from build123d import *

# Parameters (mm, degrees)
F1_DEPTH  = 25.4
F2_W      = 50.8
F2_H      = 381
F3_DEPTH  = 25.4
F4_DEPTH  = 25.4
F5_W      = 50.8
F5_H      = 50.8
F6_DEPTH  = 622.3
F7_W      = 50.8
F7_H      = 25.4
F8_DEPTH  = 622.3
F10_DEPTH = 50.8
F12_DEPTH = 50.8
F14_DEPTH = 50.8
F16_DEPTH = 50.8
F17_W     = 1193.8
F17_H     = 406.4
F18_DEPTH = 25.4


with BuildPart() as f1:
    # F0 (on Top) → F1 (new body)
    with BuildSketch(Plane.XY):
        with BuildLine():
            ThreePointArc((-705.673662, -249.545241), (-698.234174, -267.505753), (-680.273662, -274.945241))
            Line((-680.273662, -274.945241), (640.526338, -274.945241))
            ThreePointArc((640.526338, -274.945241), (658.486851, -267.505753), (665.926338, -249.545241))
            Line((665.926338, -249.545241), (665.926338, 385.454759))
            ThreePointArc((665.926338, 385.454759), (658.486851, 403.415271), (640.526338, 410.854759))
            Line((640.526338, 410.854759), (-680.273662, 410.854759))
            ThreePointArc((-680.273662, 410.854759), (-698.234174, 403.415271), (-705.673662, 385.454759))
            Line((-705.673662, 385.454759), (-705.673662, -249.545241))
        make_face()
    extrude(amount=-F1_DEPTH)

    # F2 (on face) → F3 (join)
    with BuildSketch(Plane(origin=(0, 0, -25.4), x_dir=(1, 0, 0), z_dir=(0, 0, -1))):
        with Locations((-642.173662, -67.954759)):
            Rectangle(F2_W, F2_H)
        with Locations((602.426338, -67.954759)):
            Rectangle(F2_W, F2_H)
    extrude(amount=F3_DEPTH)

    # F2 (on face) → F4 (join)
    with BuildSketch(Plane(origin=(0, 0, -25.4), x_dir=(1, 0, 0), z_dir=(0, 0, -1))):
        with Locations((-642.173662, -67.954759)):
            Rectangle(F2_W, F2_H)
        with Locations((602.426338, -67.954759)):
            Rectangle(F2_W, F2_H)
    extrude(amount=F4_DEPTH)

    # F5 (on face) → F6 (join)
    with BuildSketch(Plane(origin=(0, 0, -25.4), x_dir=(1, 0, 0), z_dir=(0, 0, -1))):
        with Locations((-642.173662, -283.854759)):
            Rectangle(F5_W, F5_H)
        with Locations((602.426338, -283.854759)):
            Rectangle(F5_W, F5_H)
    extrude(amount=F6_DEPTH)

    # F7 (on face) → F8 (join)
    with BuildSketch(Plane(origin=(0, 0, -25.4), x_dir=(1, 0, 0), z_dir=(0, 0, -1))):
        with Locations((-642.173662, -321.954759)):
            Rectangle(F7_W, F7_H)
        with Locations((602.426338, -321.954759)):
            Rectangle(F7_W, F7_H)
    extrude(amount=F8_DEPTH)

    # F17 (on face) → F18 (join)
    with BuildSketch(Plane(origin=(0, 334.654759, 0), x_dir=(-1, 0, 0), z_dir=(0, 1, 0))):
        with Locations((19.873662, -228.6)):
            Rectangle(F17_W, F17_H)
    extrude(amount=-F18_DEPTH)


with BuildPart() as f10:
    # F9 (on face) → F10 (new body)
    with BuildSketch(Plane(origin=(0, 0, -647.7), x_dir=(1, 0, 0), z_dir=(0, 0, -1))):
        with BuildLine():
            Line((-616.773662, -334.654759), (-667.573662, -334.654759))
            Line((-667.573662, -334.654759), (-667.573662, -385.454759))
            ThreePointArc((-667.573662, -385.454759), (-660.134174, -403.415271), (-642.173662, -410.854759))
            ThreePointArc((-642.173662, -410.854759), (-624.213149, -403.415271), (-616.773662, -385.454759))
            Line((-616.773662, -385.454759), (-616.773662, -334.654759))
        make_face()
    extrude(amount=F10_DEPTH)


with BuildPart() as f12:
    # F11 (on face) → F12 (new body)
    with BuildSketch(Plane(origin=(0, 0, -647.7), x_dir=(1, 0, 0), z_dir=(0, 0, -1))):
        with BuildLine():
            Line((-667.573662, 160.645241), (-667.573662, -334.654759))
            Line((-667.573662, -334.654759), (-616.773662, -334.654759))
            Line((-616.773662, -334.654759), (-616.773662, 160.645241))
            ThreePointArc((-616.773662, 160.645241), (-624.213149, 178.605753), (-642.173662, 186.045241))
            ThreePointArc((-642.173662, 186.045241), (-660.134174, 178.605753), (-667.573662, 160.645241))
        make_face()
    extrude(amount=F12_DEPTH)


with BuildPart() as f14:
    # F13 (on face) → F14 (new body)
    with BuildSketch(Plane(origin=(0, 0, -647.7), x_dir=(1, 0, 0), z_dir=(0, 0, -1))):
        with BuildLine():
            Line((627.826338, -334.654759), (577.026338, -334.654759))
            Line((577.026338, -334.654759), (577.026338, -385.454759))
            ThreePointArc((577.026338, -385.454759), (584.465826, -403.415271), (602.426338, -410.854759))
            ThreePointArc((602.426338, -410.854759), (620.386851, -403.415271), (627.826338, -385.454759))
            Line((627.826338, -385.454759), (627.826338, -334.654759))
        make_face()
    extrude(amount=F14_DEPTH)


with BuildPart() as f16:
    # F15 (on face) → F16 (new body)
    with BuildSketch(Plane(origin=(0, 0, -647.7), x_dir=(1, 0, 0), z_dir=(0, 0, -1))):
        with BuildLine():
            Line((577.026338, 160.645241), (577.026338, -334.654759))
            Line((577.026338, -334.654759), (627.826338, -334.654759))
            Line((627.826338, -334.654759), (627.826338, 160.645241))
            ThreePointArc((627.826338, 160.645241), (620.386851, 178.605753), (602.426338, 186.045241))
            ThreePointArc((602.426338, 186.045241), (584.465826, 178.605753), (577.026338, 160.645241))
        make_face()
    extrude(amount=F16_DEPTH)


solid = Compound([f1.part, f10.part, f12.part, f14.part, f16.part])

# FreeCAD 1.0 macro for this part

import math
import FreeCAD as App
import Part
import Sketcher

V = App.Vector
Q = App.Units.Quantity

doc = App.newDocument("Part")
body = doc.addObject("PartDesign::Body", "Body")

# Sketch on XY plane
sketch1 = doc.addObject("Sketcher::SketchObject", "Sketch")
body.addObject(sketch1)
sketch1.AttachmentSupport = (doc.XY_Plane, [""])
sketch1.MapMode = "FlatFace"
sketch1.addGeometry([
    Part.ArcOfCircle(Part.Circle(V(-680, -250, 0), V(0, 0, 1), 25), math.radians(-180), math.radians(-90)),  # 0
    Part.LineSegment(V(-680, -275, 0), V(641, -275, 0)),  # 1
    Part.ArcOfCircle(Part.Circle(V(641, -250, 0), V(0, 0, 1), 25), math.radians(-90), math.radians(0)),  # 2
    Part.LineSegment(V(666, -250, 0), V(666, 385, 0)),  # 3
    Part.ArcOfCircle(Part.Circle(V(641, 385, 0), V(0, 0, 1), 25), math.radians(0), math.radians(90)),  # 4
    Part.LineSegment(V(641, 411, 0), V(-680, 411, 0)),  # 5
    Part.ArcOfCircle(Part.Circle(V(-680, 385, 0), V(0, 0, 1), 25), math.radians(90), math.radians(180)),  # 6
    Part.LineSegment(V(-706, 385, 0), V(-706, -250, 0)),  # 7
], False)
sketch1.addConstraint([
    Sketcher.Constraint("Tangent", 0, 2, 1, 1),
    Sketcher.Constraint("Tangent", 1, 2, 2, 1),
    Sketcher.Constraint("Tangent", 2, 2, 3, 1),
    Sketcher.Constraint("Tangent", 3, 2, 4, 1),
    Sketcher.Constraint("Tangent", 4, 2, 5, 1),
    Sketcher.Constraint("Tangent", 5, 2, 6, 1),
    Sketcher.Constraint("Tangent", 6, 2, 7, 1),
    Sketcher.Constraint("Tangent", 7, 2, 0, 1),
    Sketcher.Constraint("Horizontal", 1),
    Sketcher.Constraint("Vertical", 3),
    Sketcher.Constraint("Horizontal", 5),
    Sketcher.Constraint("Vertical", 7),
    Sketcher.Constraint("Equal", 0, 2),
    Sketcher.Constraint("Equal", 2, 4),
    Sketcher.Constraint("Equal", 4, 6),
    Sketcher.Constraint("Radius", 0, Q("1 in")),
    Sketcher.Constraint("DistanceX", 1, 1, 1, 2, Q("52 in")),
    Sketcher.Constraint("DistanceY", 3, 1, 3, 2, Q("25 in")),
    Sketcher.Constraint("DistanceX", 0, 3, -1, 1, 680.273661),
    Sketcher.Constraint("DistanceY", 0, 3, -1, 1, 249.54524),
])
pad1 = doc.addObject("PartDesign::Pad", "Pad")
body.addObject(pad1)
pad1.Profile = sketch1
pad1.Length = Q("1 in")
pad1.Reversed = True

# Sketch on XY plane
sketch2 = doc.addObject("Sketcher::SketchObject", "Sketch001")
body.addObject(sketch2)
sketch2.AttachmentSupport = (doc.XY_Plane, [""])
sketch2.MapMode = "FlatFace"
sketch2.AttachmentOffset = App.Placement(V(0, 0, -1 * 25.4), App.Rotation())
sketch2.addGeometry([
    Part.LineSegment(V(-668, -123, 0), V(-668, 258, 0)),  # 0
    Part.LineSegment(V(-668, 258, 0), V(-617, 258, 0)),  # 1
    Part.LineSegment(V(-617, 258, 0), V(-617, -123, 0)),  # 2
    Part.LineSegment(V(-617, -123, 0), V(-668, -123, 0)),  # 3
    Part.LineSegment(V(577, -123, 0), V(577, 258, 0)),  # 4
    Part.LineSegment(V(577, 258, 0), V(628, 258, 0)),  # 5
    Part.LineSegment(V(628, 258, 0), V(628, -123, 0)),  # 6
    Part.LineSegment(V(628, -123, 0), V(577, -123, 0)),  # 7
], False)
sketch2.addConstraint([
    Sketcher.Constraint("Coincident", 0, 2, 1, 1),
    Sketcher.Constraint("Coincident", 1, 2, 2, 1),
    Sketcher.Constraint("Coincident", 2, 2, 3, 1),
    Sketcher.Constraint("Coincident", 3, 2, 0, 1),
    Sketcher.Constraint("Coincident", 4, 2, 5, 1),
    Sketcher.Constraint("Coincident", 5, 2, 6, 1),
    Sketcher.Constraint("Coincident", 6, 2, 7, 1),
    Sketcher.Constraint("Coincident", 7, 2, 4, 1),
    Sketcher.Constraint("Vertical", 0),
    Sketcher.Constraint("Horizontal", 1),
    Sketcher.Constraint("Vertical", 2),
    Sketcher.Constraint("Horizontal", 3),
    Sketcher.Constraint("Vertical", 4),
    Sketcher.Constraint("Horizontal", 5),
    Sketcher.Constraint("Vertical", 6),
    Sketcher.Constraint("Horizontal", 7),
    Sketcher.Constraint("Horizontal", 1, 2, 4, 2),
    Sketcher.Constraint("Horizontal", 3, 2, 6, 2),
    Sketcher.Constraint("Equal", 3, 5),
    Sketcher.Constraint("DistanceX", 1, 1, 1, 2, Q("2 in")),
    Sketcher.Constraint("DistanceY", 0, 1, 0, 2, Q("15 in")),
    Sketcher.Constraint("DistanceX", 1, 2, 4, 2, Q("47 in")),
    Sketcher.Constraint("DistanceX", 0, 2, -1, 1, 667.573662),
    Sketcher.Constraint("DistanceY", -1, 1, 0, 2, 258.454759),
])
pad2 = doc.addObject("PartDesign::Pad", "Pad001")
body.addObject(pad2)
pad2.Profile = sketch2
pad2.Length = Q("1 in")
pad2.Reversed = True

# Sketch on XY plane
sketch3 = doc.addObject("Sketcher::SketchObject", "Sketch002")
body.addObject(sketch3)
sketch3.AttachmentSupport = (doc.XY_Plane, [""])
sketch3.MapMode = "FlatFace"
sketch3.AttachmentOffset = App.Placement(V(0, 0, -1 * 25.4), App.Rotation())
sketch3.addGeometry([
    Part.LineSegment(V(-668, -123, 0), V(-668, 258, 0)),  # 0
    Part.LineSegment(V(-668, 258, 0), V(-617, 258, 0)),  # 1
    Part.LineSegment(V(-617, 258, 0), V(-617, -123, 0)),  # 2
    Part.LineSegment(V(-617, -123, 0), V(-668, -123, 0)),  # 3
    Part.LineSegment(V(577, -123, 0), V(577, 258, 0)),  # 4
    Part.LineSegment(V(577, 258, 0), V(628, 258, 0)),  # 5
    Part.LineSegment(V(628, 258, 0), V(628, -123, 0)),  # 6
    Part.LineSegment(V(628, -123, 0), V(577, -123, 0)),  # 7
], False)
sketch3.addConstraint([
    Sketcher.Constraint("Coincident", 0, 2, 1, 1),
    Sketcher.Constraint("Coincident", 1, 2, 2, 1),
    Sketcher.Constraint("Coincident", 2, 2, 3, 1),
    Sketcher.Constraint("Coincident", 3, 2, 0, 1),
    Sketcher.Constraint("Coincident", 4, 2, 5, 1),
    Sketcher.Constraint("Coincident", 5, 2, 6, 1),
    Sketcher.Constraint("Coincident", 6, 2, 7, 1),
    Sketcher.Constraint("Coincident", 7, 2, 4, 1),
    Sketcher.Constraint("Vertical", 0),
    Sketcher.Constraint("Horizontal", 1),
    Sketcher.Constraint("Vertical", 2),
    Sketcher.Constraint("Horizontal", 3),
    Sketcher.Constraint("Vertical", 4),
    Sketcher.Constraint("Horizontal", 5),
    Sketcher.Constraint("Vertical", 6),
    Sketcher.Constraint("Horizontal", 7),
    Sketcher.Constraint("Horizontal", 1, 2, 4, 2),
    Sketcher.Constraint("Horizontal", 3, 2, 6, 2),
    Sketcher.Constraint("Equal", 3, 5),
    Sketcher.Constraint("DistanceX", 1, 1, 1, 2, Q("2 in")),
    Sketcher.Constraint("DistanceY", 0, 1, 0, 2, Q("15 in")),
    Sketcher.Constraint("DistanceX", 1, 2, 4, 2, Q("47 in")),
    Sketcher.Constraint("DistanceX", 0, 2, -1, 1, 667.573662),
    Sketcher.Constraint("DistanceY", -1, 1, 0, 2, 258.454759),
])
pad3 = doc.addObject("PartDesign::Pad", "Pad002")
body.addObject(pad3)
pad3.Profile = sketch3
pad3.Length = Q("1 in")
pad3.Reversed = True

# Sketch on XY plane
sketch4 = doc.addObject("Sketcher::SketchObject", "Sketch003")
body.addObject(sketch4)
sketch4.AttachmentSupport = (doc.XY_Plane, [""])
sketch4.MapMode = "FlatFace"
sketch4.AttachmentOffset = App.Placement(V(0, 0, -1 * 25.4), App.Rotation())
sketch4.addGeometry([
    Part.LineSegment(V(-668, 258, 0), V(-668, 309, 0)),  # 0
    Part.LineSegment(V(-668, 309, 0), V(-617, 309, 0)),  # 1
    Part.LineSegment(V(-617, 309, 0), V(-617, 258, 0)),  # 2
    Part.LineSegment(V(-617, 258, 0), V(-668, 258, 0)),  # 3
    Part.LineSegment(V(577, 258, 0), V(577, 309, 0)),  # 4
    Part.LineSegment(V(577, 309, 0), V(628, 309, 0)),  # 5
    Part.LineSegment(V(628, 309, 0), V(628, 258, 0)),  # 6
    Part.LineSegment(V(628, 258, 0), V(577, 258, 0)),  # 7
], False)
sketch4.addConstraint([
    Sketcher.Constraint("Coincident", 0, 2, 1, 1),
    Sketcher.Constraint("Coincident", 1, 2, 2, 1),
    Sketcher.Constraint("Coincident", 2, 2, 3, 1),
    Sketcher.Constraint("Coincident", 3, 2, 0, 1),
    Sketcher.Constraint("Coincident", 4, 2, 5, 1),
    Sketcher.Constraint("Coincident", 5, 2, 6, 1),
    Sketcher.Constraint("Coincident", 6, 2, 7, 1),
    Sketcher.Constraint("Coincident", 7, 2, 4, 1),
    Sketcher.Constraint("Vertical", 0),
    Sketcher.Constraint("Horizontal", 1),
    Sketcher.Constraint("Vertical", 2),
    Sketcher.Constraint("Horizontal", 3),
    Sketcher.Constraint("Vertical", 4),
    Sketcher.Constraint("Horizontal", 5),
    Sketcher.Constraint("Vertical", 6),
    Sketcher.Constraint("Horizontal", 7),
    Sketcher.Constraint("Horizontal", 1, 2, 4, 2),
    Sketcher.Constraint("Horizontal", 3, 2, 6, 2),
    Sketcher.Constraint("Equal", 3, 5),
    Sketcher.Constraint("Equal", 7, 0),
    Sketcher.Constraint("DistanceX", 1, 1, 1, 2, Q("2 in")),
    Sketcher.Constraint("DistanceX", 1, 2, 4, 2, Q("47 in")),
    Sketcher.Constraint("DistanceX", 0, 2, -1, 1, 667.573662),
    Sketcher.Constraint("DistanceY", -1, 1, 0, 2, 309.254759),
])
pad4 = doc.addObject("PartDesign::Pad", "Pad003")
body.addObject(pad4)
pad4.Profile = sketch4
pad4.Length = Q("24.5 in")
pad4.Reversed = True

# Sketch on XY plane
sketch5 = doc.addObject("Sketcher::SketchObject", "Sketch004")
body.addObject(sketch5)
sketch5.AttachmentSupport = (doc.XY_Plane, [""])
sketch5.MapMode = "FlatFace"
sketch5.AttachmentOffset = App.Placement(V(0, 0, -1 * 25.4), App.Rotation())
sketch5.addGeometry([
    Part.LineSegment(V(-668, 309, 0), V(-668, 335, 0)),  # 0
    Part.LineSegment(V(-668, 335, 0), V(-617, 335, 0)),  # 1
    Part.LineSegment(V(-617, 335, 0), V(-617, 309, 0)),  # 2
    Part.LineSegment(V(-617, 309, 0), V(-668, 309, 0)),  # 3
    Part.LineSegment(V(577, 309, 0), V(577, 335, 0)),  # 4
    Part.LineSegment(V(577, 335, 0), V(628, 335, 0)),  # 5
    Part.LineSegment(V(628, 335, 0), V(628, 309, 0)),  # 6
    Part.LineSegment(V(628, 309, 0), V(577, 309, 0)),  # 7
], False)
sketch5.addConstraint([
    Sketcher.Constraint("Coincident", 0, 2, 1, 1),
    Sketcher.Constraint("Coincident", 1, 2, 2, 1),
    Sketcher.Constraint("Coincident", 2, 2, 3, 1),
    Sketcher.Constraint("Coincident", 3, 2, 0, 1),
    Sketcher.Constraint("Coincident", 4, 2, 5, 1),
    Sketcher.Constraint("Coincident", 5, 2, 6, 1),
    Sketcher.Constraint("Coincident", 6, 2, 7, 1),
    Sketcher.Constraint("Coincident", 7, 2, 4, 1),
    Sketcher.Constraint("Vertical", 0),
    Sketcher.Constraint("Horizontal", 1),
    Sketcher.Constraint("Vertical", 2),
    Sketcher.Constraint("Horizontal", 3),
    Sketcher.Constraint("Vertical", 4),
    Sketcher.Constraint("Horizontal", 5),
    Sketcher.Constraint("Vertical", 6),
    Sketcher.Constraint("Horizontal", 7),
    Sketcher.Constraint("Horizontal", 1, 2, 4, 2),
    Sketcher.Constraint("Horizontal", 3, 2, 6, 2),
    Sketcher.Constraint("Equal", 3, 5),
    Sketcher.Constraint("DistanceX", 1, 1, 1, 2, Q("2 in")),
    Sketcher.Constraint("DistanceY", 0, 1, 0, 2, Q("1 in")),
    Sketcher.Constraint("DistanceX", 1, 2, 4, 2, Q("47 in")),
    Sketcher.Constraint("DistanceX", 0, 2, -1, 1, 667.573662),
    Sketcher.Constraint("DistanceY", -1, 1, 0, 2, 334.654759),
])
pad5 = doc.addObject("PartDesign::Pad", "Pad004")
body.addObject(pad5)
pad5.Profile = sketch5
pad5.Length = Q("24.5 in")
pad5.Reversed = True

# Sketch on XZ plane
sketch6 = doc.addObject("Sketcher::SketchObject", "Sketch005")
body.addObject(sketch6)
sketch6.AttachmentSupport = (doc.XZ_Plane, [""])
sketch6.MapMode = "FlatFace"
sketch6.AttachmentOffset = App.Placement(V(0, 0, -334.654759), App.Rotation())
sketch6.addGeometry([
    Part.LineSegment(V(577, -25, 0), V(577, -432, 0)),
    Part.LineSegment(V(577, -432, 0), V(-617, -432, 0)),
    Part.LineSegment(V(-617, -432, 0), V(-617, -25, 0)),
    Part.LineSegment(V(-617, -25, 0), V(577, -25, 0)),
], False)
sketch6.addConstraint([
    Sketcher.Constraint("Coincident", 0, 2, 1, 1),
    Sketcher.Constraint("Coincident", 1, 2, 2, 1),
    Sketcher.Constraint("Coincident", 2, 2, 3, 1),
    Sketcher.Constraint("Coincident", 3, 2, 0, 1),
    Sketcher.Constraint("Vertical", 0),
    Sketcher.Constraint("Horizontal", 1),
    Sketcher.Constraint("Vertical", 2),
    Sketcher.Constraint("Horizontal", 3),
    Sketcher.Constraint("DistanceX", 1, 2, 1, 1, Q("47 in")),
    Sketcher.Constraint("DistanceY", 0, 2, 0, 1, Q("16 in")),
    Sketcher.Constraint("DistanceY", 0, 2, -1, 1, Q("17 in")),
    Sketcher.Constraint("DistanceX", -1, 1, 0, 2, 577.026338),
])
pad6 = doc.addObject("PartDesign::Pad", "Pad005")
body.addObject(pad6)
pad6.Profile = sketch6
pad6.Length = Q("1 in")
body2 = doc.addObject("PartDesign::Body", "Body001")

# Sketch on XY plane
sketch7 = doc.addObject("Sketcher::SketchObject", "Sketch006")
body2.addObject(sketch7)
sketch7.AttachmentSupport = (doc.getObject("XY_Plane001"), [""])
sketch7.MapMode = "FlatFace"
sketch7.AttachmentOffset = App.Placement(V(0, 0, -25.5 * 25.4), App.Rotation())
sketch7.addGeometry([
    Part.LineSegment(V(-617, 335, 0), V(-668, 335, 0)),  # 0
    Part.LineSegment(V(-668, 335, 0), V(-668, 385, 0)),  # 1
    Part.ArcOfCircle(Part.Circle(V(-642, 385, 0), V(0, 0, 1), 25), math.radians(90), math.radians(180)),  # 2
    Part.ArcOfCircle(Part.Circle(V(-642, 385, 0), V(0, 0, 1), 25), math.radians(0), math.radians(90)),  # 3
    Part.LineSegment(V(-617, 385, 0), V(-617, 335, 0)),  # 4
], False)
sketch7.addConstraint([
    Sketcher.Constraint("Coincident", 0, 2, 1, 1),
    Sketcher.Constraint("Tangent", 1, 2, 2, 2),
    Sketcher.Constraint("Tangent", 2, 1, 3, 2),
    Sketcher.Constraint("Tangent", 3, 1, 4, 1),
    Sketcher.Constraint("Coincident", 4, 2, 0, 1),
    Sketcher.Constraint("Horizontal", 0),
    Sketcher.Constraint("Vertical", 1),
    Sketcher.Constraint("Vertical", 4),
    Sketcher.Constraint("Equal", 2, 3),
    Sketcher.Constraint("Vertical", 3, 3, 2, 1),
    Sketcher.Constraint("Equal", 0, 1),
    Sketcher.Constraint("Radius", 2, Q("1 in")),
    Sketcher.Constraint("DistanceX", 2, 3, -1, 1, 642.173661),
    Sketcher.Constraint("DistanceY", -1, 1, 2, 3, 385.454758),
])
pad7 = doc.addObject("PartDesign::Pad", "Pad006")
body2.addObject(pad7)
pad7.Profile = sketch7
pad7.Length = Q("2 in")
pad7.Reversed = True
body3 = doc.addObject("PartDesign::Body", "Body002")

# Sketch on XY plane
sketch8 = doc.addObject("Sketcher::SketchObject", "Sketch007")
body3.addObject(sketch8)
sketch8.AttachmentSupport = (doc.getObject("XY_Plane002"), [""])
sketch8.MapMode = "FlatFace"
sketch8.AttachmentOffset = App.Placement(V(0, 0, -25.5 * 25.4), App.Rotation())
sketch8.addGeometry([
    Part.LineSegment(V(-668, -161, 0), V(-668, 335, 0)),  # 0
    Part.LineSegment(V(-668, 335, 0), V(-617, 335, 0)),  # 1
    Part.LineSegment(V(-617, 335, 0), V(-617, -161, 0)),  # 2
    Part.ArcOfCircle(Part.Circle(V(-642, -161, 0), V(0, 0, 1), 25), math.radians(-90), math.radians(0)),  # 3
    Part.ArcOfCircle(Part.Circle(V(-642, -161, 0), V(0, 0, 1), 25), math.radians(-180), math.radians(-90)),  # 4
], False)
sketch8.addConstraint([
    Sketcher.Constraint("Coincident", 0, 2, 1, 1),
    Sketcher.Constraint("Coincident", 1, 2, 2, 1),
    Sketcher.Constraint("Tangent", 2, 2, 3, 2),
    Sketcher.Constraint("Tangent", 3, 1, 4, 2),
    Sketcher.Constraint("Tangent", 4, 1, 0, 1),
    Sketcher.Constraint("Vertical", 0),
    Sketcher.Constraint("Horizontal", 1),
    Sketcher.Constraint("Vertical", 2),
    Sketcher.Constraint("Equal", 3, 4),
    Sketcher.Constraint("Vertical", 4, 3, 3, 1),
    Sketcher.Constraint("Radius", 3, Q("1 in")),
    Sketcher.Constraint("DistanceY", 0, 1, 0, 2, Q("19.5 in")),
    Sketcher.Constraint("DistanceX", 3, 3, -1, 1, 642.173661),
    Sketcher.Constraint("DistanceY", 3, 3, -1, 1, 160.645242),
])
pad8 = doc.addObject("PartDesign::Pad", "Pad007")
body3.addObject(pad8)
pad8.Profile = sketch8
pad8.Length = Q("2 in")
pad8.Reversed = True
body4 = doc.addObject("PartDesign::Body", "Body003")

# Sketch on XY plane
sketch9 = doc.addObject("Sketcher::SketchObject", "Sketch008")
body4.addObject(sketch9)
sketch9.AttachmentSupport = (doc.getObject("XY_Plane003"), [""])
sketch9.MapMode = "FlatFace"
sketch9.AttachmentOffset = App.Placement(V(0, 0, -25.5 * 25.4), App.Rotation())
sketch9.addGeometry([
    Part.LineSegment(V(628, 335, 0), V(577, 335, 0)),  # 0
    Part.LineSegment(V(577, 335, 0), V(577, 385, 0)),  # 1
    Part.ArcOfCircle(Part.Circle(V(602, 385, 0), V(0, 0, 1), 25), math.radians(90), math.radians(180)),  # 2
    Part.ArcOfCircle(Part.Circle(V(602, 385, 0), V(0, 0, 1), 25), math.radians(0), math.radians(90)),  # 3
    Part.LineSegment(V(628, 385, 0), V(628, 335, 0)),  # 4
], False)
sketch9.addConstraint([
    Sketcher.Constraint("Coincident", 0, 2, 1, 1),
    Sketcher.Constraint("Tangent", 1, 2, 2, 2),
    Sketcher.Constraint("Tangent", 2, 1, 3, 2),
    Sketcher.Constraint("Tangent", 3, 1, 4, 1),
    Sketcher.Constraint("Coincident", 4, 2, 0, 1),
    Sketcher.Constraint("Horizontal", 0),
    Sketcher.Constraint("Vertical", 1),
    Sketcher.Constraint("Vertical", 4),
    Sketcher.Constraint("Equal", 2, 3),
    Sketcher.Constraint("Vertical", 3, 3, 2, 1),
    Sketcher.Constraint("Equal", 0, 1),
    Sketcher.Constraint("Radius", 2, Q("1 in")),
    Sketcher.Constraint("DistanceX", -1, 1, 2, 3, 602.426339),
    Sketcher.Constraint("DistanceY", -1, 1, 2, 3, 385.454758),
])
pad9 = doc.addObject("PartDesign::Pad", "Pad008")
body4.addObject(pad9)
pad9.Profile = sketch9
pad9.Length = Q("2 in")
pad9.Reversed = True
body5 = doc.addObject("PartDesign::Body", "Body004")

# Sketch on XY plane
sketch10 = doc.addObject("Sketcher::SketchObject", "Sketch009")
body5.addObject(sketch10)
sketch10.AttachmentSupport = (doc.getObject("XY_Plane004"), [""])
sketch10.MapMode = "FlatFace"
sketch10.AttachmentOffset = App.Placement(V(0, 0, -25.5 * 25.4), App.Rotation())
sketch10.addGeometry([
    Part.LineSegment(V(577, -161, 0), V(577, 335, 0)),  # 0
    Part.LineSegment(V(577, 335, 0), V(628, 335, 0)),  # 1
    Part.LineSegment(V(628, 335, 0), V(628, -161, 0)),  # 2
    Part.ArcOfCircle(Part.Circle(V(602, -161, 0), V(0, 0, 1), 25), math.radians(-90), math.radians(0)),  # 3
    Part.ArcOfCircle(Part.Circle(V(602, -161, 0), V(0, 0, 1), 25), math.radians(-180), math.radians(-90)),  # 4
], False)
sketch10.addConstraint([
    Sketcher.Constraint("Coincident", 0, 2, 1, 1),
    Sketcher.Constraint("Coincident", 1, 2, 2, 1),
    Sketcher.Constraint("Tangent", 2, 2, 3, 2),
    Sketcher.Constraint("Tangent", 3, 1, 4, 2),
    Sketcher.Constraint("Tangent", 4, 1, 0, 1),
    Sketcher.Constraint("Vertical", 0),
    Sketcher.Constraint("Horizontal", 1),
    Sketcher.Constraint("Vertical", 2),
    Sketcher.Constraint("Equal", 3, 4),
    Sketcher.Constraint("Vertical", 4, 3, 3, 1),
    Sketcher.Constraint("Radius", 3, Q("1 in")),
    Sketcher.Constraint("DistanceY", 0, 1, 0, 2, Q("19.5 in")),
    Sketcher.Constraint("DistanceX", -1, 1, 3, 3, 602.426339),
    Sketcher.Constraint("DistanceY", 3, 3, -1, 1, 160.645242),
])
pad10 = doc.addObject("PartDesign::Pad", "Pad009")
body5.addObject(pad10)
pad10.Profile = sketch10
pad10.Length = Q("2 in")
pad10.Reversed = True

doc.recompute()
